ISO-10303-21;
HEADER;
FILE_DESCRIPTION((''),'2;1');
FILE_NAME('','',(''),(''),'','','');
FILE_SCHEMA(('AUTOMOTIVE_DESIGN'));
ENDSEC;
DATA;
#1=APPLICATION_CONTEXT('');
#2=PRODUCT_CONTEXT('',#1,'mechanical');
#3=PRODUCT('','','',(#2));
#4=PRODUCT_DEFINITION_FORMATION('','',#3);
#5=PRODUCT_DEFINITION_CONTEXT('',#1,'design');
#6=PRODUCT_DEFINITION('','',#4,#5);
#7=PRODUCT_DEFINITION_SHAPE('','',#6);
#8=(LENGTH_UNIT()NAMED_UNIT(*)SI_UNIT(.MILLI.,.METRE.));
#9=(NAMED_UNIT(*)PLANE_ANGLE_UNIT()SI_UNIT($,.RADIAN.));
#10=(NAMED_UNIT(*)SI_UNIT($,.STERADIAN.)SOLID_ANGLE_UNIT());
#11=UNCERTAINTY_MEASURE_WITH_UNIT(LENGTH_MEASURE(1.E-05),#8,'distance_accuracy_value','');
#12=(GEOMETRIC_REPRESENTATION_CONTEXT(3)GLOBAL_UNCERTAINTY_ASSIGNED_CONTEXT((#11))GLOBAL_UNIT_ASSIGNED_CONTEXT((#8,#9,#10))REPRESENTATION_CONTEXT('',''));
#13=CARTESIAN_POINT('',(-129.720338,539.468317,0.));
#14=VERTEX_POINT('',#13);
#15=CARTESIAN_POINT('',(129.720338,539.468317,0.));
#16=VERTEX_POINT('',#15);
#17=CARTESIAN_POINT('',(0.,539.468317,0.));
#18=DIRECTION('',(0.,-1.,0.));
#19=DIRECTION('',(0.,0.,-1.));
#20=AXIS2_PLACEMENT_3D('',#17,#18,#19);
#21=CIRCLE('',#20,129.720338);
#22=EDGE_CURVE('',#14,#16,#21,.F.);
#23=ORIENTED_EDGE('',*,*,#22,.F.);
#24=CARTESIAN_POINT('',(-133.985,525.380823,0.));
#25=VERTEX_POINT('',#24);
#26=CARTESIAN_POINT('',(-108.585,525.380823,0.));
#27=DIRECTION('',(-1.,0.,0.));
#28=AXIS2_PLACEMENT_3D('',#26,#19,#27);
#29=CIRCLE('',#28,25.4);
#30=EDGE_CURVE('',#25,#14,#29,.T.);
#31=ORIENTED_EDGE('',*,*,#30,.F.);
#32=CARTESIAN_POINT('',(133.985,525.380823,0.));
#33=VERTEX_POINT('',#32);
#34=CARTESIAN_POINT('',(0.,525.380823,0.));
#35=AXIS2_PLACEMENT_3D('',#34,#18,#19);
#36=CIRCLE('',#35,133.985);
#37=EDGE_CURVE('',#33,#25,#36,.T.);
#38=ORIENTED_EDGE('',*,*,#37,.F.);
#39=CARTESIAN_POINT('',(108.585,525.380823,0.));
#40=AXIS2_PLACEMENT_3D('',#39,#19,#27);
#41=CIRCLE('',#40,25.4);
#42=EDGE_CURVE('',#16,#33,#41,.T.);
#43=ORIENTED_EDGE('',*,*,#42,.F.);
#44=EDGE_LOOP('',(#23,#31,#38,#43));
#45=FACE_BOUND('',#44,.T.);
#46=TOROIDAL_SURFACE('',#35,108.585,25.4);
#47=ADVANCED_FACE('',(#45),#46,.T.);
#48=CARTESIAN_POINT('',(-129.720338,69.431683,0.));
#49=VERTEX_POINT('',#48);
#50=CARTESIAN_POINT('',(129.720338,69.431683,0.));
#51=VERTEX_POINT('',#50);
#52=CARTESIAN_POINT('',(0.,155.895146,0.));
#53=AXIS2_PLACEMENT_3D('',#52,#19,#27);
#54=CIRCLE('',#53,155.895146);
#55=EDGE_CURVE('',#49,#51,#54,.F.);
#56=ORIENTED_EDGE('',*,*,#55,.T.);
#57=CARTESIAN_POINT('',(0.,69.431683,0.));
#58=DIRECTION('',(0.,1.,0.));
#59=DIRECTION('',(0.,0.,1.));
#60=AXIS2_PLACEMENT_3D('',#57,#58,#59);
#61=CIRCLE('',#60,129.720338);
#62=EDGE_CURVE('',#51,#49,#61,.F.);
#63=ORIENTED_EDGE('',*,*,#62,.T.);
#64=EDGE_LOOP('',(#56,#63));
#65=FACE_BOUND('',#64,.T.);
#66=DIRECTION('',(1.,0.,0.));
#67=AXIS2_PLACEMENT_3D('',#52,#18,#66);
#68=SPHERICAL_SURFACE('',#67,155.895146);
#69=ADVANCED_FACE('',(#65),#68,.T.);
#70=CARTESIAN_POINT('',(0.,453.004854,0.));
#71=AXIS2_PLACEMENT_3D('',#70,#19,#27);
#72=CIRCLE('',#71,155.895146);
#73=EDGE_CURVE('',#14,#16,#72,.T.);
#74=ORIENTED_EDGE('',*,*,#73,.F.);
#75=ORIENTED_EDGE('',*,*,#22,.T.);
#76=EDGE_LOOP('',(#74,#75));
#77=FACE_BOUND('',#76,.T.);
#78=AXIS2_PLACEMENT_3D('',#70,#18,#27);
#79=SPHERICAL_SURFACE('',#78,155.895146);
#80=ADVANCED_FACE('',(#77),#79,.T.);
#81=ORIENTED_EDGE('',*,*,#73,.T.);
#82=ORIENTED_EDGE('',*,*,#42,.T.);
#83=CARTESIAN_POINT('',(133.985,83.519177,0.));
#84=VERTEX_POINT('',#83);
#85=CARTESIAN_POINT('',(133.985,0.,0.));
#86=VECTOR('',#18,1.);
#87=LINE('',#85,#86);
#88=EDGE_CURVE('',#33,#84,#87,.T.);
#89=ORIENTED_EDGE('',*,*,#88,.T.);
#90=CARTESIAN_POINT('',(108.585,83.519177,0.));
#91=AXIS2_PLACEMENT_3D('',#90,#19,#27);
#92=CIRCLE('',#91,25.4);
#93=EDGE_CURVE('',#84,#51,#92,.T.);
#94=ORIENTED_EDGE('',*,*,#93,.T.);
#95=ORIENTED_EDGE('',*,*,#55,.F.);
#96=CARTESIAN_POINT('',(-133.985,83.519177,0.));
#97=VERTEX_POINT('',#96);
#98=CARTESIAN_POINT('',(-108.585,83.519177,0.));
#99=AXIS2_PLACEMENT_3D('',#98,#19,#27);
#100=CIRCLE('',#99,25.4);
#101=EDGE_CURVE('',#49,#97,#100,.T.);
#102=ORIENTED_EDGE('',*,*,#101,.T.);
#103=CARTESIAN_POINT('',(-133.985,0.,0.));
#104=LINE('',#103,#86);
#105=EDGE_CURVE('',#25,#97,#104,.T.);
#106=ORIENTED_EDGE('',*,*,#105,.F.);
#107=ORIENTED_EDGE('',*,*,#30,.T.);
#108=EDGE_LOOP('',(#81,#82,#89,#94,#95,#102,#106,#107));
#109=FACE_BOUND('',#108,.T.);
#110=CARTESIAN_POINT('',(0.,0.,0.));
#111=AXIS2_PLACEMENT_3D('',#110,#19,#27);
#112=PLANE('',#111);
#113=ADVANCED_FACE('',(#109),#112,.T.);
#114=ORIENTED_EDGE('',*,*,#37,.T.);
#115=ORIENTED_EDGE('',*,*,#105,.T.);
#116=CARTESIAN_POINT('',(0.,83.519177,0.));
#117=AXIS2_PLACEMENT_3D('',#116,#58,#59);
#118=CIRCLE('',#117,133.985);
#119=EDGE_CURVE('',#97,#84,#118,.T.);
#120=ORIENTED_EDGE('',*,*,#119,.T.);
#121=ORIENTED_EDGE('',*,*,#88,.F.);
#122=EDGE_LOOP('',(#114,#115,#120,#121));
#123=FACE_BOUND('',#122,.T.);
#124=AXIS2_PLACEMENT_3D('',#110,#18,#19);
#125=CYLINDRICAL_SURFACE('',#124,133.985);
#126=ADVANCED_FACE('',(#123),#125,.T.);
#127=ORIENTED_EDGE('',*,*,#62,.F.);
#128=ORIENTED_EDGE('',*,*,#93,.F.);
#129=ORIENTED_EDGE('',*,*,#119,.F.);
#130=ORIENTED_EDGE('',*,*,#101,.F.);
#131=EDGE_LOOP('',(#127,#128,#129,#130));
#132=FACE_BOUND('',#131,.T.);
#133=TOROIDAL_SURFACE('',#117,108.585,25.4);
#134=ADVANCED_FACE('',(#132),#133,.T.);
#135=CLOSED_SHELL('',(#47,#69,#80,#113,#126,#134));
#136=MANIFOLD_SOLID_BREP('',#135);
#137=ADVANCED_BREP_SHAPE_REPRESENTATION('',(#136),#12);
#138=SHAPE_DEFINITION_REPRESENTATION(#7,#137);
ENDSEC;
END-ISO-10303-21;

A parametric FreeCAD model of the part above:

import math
import FreeCAD as App
import Part
import Sketcher
Q = App.Units.Quantity


def edges_at(feature, points):
    """Names of the edges that pass closest to the given points."""
    edges = feature.Shape.Edges
    near = lambda p: min(range(len(edges)), key=lambda i: edges[i].distToShape(Part.Vertex(*p))[0])
    return sorted({f"Edge{near(p) + 1}" for p in points})

doc = App.newDocument("Part")
params = doc.addObject("Spreadsheet::Sheet", "Params")
for row, (alias, value) in enumerate([
    ("sketch1_height", "608.9 mm"),
    ("sketch1_height2", "456.5 mm"),
    ("revolution_angle", "180 deg"),
    ("fillet_radius", "25.4 mm"),
], start=1):
    params.set(f"A{row}", alias)
    params.set(f"B{row}", "=" + value)
    params.setAlias(f"B{row}", alias)

body = doc.addObject("PartDesign::Body", "Body")

# Sketch on XY plane
sketch1 = body.newObject("Sketcher::SketchObject", "Sketch")
sketch1.AttachmentSupport = (doc.getObject("XY_Plane"), [""])
sketch1.MapMode = "FlatFace"
sketch1.addGeometry(Part.LineSegment(App.Vector(0, 0, 0), App.Vector(0, 609, 0)), False)
sketch1.addGeometry(Part.ArcOfCircle(Part.Circle(App.Vector(0, 453, 0), App.Vector(0, 0, 1), 156), math.radians(90), math.radians(149)), False)
sketch1.addGeometry(Part.LineSegment(App.Vector(-134, 533, 0), App.Vector(-134, 76, 0)), False)
sketch1.addGeometry(Part.ArcOfCircle(Part.Circle(App.Vector(0, 156, 0), App.Vector(0, 0, 1), 156), math.radians(-149), math.radians(-90)), False)
sketch1.addConstraint(Sketcher.Constraint("Coincident", 0, 2, 1, 1))
sketch1.addConstraint(Sketcher.Constraint("Coincident", 1, 2, 2, 1))
sketch1.addConstraint(Sketcher.Constraint("Coincident", 2, 2, 3, 1))
sketch1.addConstraint(Sketcher.Constraint("Coincident", 3, 2, 0, 1))
sketch1.addConstraint(Sketcher.Constraint("Vertical", 0))
sketch1.addConstraint(Sketcher.Constraint("Vertical", 2))
sketch1.addConstraint(Sketcher.Constraint("Coincident", 3, 2, -1, 1))
sketch1.addConstraint(Sketcher.Constraint("Equal", 1, 3))
sketch1.addConstraint(Sketcher.Constraint("PointOnObject", 1, 3, -2))
sketch1.addConstraint(Sketcher.Constraint("PointOnObject", 3, 3, -2))
sketch1.addConstraint(Sketcher.Constraint("DistanceY", 0, 1, 0, 2, Q("608.9 mm")))
sketch1.addConstraint(Sketcher.Constraint("DistanceY", 2, 2, 2, 1, Q("456.5 mm")))
sketch1.addConstraint(Sketcher.Constraint("DistanceX", 1, 2, -1, 1, Q("133.985 mm")))
sketch1.setExpression("Constraints[10]", "Params.sketch1_height")
sketch1.setExpression("Constraints[11]", "Params.sketch1_height2")
revolution = body.newObject("PartDesign::Revolution", "Revolution")
revolution.Profile = sketch1
revolution.ReferenceAxis = (sketch1, ["V_Axis"])
revolution.setExpression("Angle", "Params.revolution_angle")
doc.recompute()

fillet = body.newObject("PartDesign::Fillet", "Fillet")
fillet.Base = (revolution, edges_at(revolution, [(0, 76.2, 133.985), (0, 532.7, 133.985)]))
fillet.setExpression("Radius", "Params.fillet_radius")

doc.recompute()
